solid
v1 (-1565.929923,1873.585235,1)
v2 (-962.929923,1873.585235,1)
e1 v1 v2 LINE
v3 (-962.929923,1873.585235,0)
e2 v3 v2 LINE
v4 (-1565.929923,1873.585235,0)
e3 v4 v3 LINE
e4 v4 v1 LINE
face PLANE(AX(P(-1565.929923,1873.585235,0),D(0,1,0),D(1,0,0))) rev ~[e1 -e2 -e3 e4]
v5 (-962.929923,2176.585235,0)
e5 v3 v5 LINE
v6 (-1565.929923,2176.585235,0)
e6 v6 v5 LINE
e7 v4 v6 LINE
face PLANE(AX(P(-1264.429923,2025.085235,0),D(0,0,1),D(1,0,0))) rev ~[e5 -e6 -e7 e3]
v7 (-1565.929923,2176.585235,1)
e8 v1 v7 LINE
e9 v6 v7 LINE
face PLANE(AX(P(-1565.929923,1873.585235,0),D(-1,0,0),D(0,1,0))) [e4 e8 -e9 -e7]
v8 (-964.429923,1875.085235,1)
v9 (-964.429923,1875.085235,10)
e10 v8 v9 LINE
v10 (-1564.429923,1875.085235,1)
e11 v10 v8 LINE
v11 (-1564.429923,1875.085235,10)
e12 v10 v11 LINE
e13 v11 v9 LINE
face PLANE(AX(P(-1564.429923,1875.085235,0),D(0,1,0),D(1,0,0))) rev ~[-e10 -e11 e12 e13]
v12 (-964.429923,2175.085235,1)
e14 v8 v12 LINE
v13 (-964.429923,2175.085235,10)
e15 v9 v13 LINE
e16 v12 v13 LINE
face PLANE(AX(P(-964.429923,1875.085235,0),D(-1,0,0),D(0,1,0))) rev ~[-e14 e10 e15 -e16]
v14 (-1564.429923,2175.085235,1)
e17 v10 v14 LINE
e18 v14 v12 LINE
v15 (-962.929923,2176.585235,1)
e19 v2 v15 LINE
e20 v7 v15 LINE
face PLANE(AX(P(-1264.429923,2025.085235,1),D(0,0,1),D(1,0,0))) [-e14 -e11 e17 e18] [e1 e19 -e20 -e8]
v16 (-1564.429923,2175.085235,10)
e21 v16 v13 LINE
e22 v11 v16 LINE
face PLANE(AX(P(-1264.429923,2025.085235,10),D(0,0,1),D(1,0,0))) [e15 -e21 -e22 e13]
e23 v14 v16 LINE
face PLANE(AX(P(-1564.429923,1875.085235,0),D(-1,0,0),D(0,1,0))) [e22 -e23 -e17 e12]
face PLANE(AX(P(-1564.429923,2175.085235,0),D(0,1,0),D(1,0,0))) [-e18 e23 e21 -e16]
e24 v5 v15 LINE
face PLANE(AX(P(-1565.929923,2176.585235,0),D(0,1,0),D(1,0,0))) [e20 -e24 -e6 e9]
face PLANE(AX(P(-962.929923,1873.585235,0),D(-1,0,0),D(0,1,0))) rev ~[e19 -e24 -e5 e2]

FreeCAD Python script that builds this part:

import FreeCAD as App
import Part
import Sketcher


def add_polygon(sketch, points):
    """Adds a closed chain of lines whose ends are joined by coincident constraints."""
    first, n = sketch.GeometryCount, len(points)
    for a, b in zip(points, points[1:] + points[:1]):
        sketch.addGeometry(Part.LineSegment(App.Vector(*a, 0), App.Vector(*b, 0)), False)
    for i in range(n):
        sketch.addConstraint(Sketcher.Constraint("Coincident", first + i, 2, first + (i + 1) % n, 1))

doc = App.newDocument("Part")
body = doc.addObject("PartDesign::Body", "Body")

# Sketch on XY plane
sketch1 = body.newObject("Sketcher::SketchObject", "Sketch")
sketch1.AttachmentSupport = (doc.getObject("XY_Plane"), [""])
sketch1.MapMode = "FlatFace"
add_polygon(sketch1, [(-1564, 2175), (-1564, 1875), (-964, 1875), (-964, 2175)])  # lines 0-3
sketch1.addConstraint(Sketcher.Constraint("Vertical", 0))
sketch1.addConstraint(Sketcher.Constraint("Horizontal", 1))
sketch1.addConstraint(Sketcher.Constraint("Vertical", 2))
sketch1.addConstraint(Sketcher.Constraint("Horizontal", 3))
sketch1.addConstraint(Sketcher.Constraint("DistanceX", 1, 1, 1, 2, 600.0))
sketch1.addConstraint(Sketcher.Constraint("DistanceY", 0, 2, 0, 1, 300.0))
sketch1.addConstraint(Sketcher.Constraint("DistanceX", 0, 2, -1, 1, 1564.429923))
sketch1.addConstraint(Sketcher.Constraint("DistanceY", -1, 1, 0, 2, 1875.085235))
pad1 = body.newObject("PartDesign::Pad", "Pad")
pad1.Profile = sketch1
pad1.Length = 10

# Sketch on XY plane
sketch2 = body.newObject("Sketcher::SketchObject", "Sketch001")
sketch2.AttachmentSupport = (doc.getObject("XY_Plane"), [""])
sketch2.MapMode = "FlatFace"
add_polygon(sketch2, [(-1566, 2177), (-1566, 1874), (-963, 1874), (-963, 2177)])  # lines 0-3
add_polygon(sketch2, [(-964, 1875), (-1564, 1875), (-1564, 2175), (-964, 2175)])  # lines 4-7
sketch2.addConstraint(Sketcher.Constraint("Vertical", 0))
sketch2.addConstraint(Sketcher.Constraint("Horizontal", 1))
sketch2.addConstraint(Sketcher.Constraint("Vertical", 2))
sketch2.addConstraint(Sketcher.Constraint("Horizontal", 3))
sketch2.addConstraint(Sketcher.Constraint("Horizontal", 4))
sketch2.addConstraint(Sketcher.Constraint("Vertical", 5))
sketch2.addConstraint(Sketcher.Constraint("Horizontal", 6))
sketch2.addConstraint(Sketcher.Constraint("Vertical", 7))
sketch2.addConstraint(Sketcher.Constraint("DistanceX", 1, 1, 1, 2, 603.0))
sketch2.addConstraint(Sketcher.Constraint("DistanceX", 4, 2, 4, 1, 600.0))
sketch2.addConstraint(Sketcher.Constraint("DistanceY", 0, 2, 0, 1, 303.0))
sketch2.addConstraint(Sketcher.Constraint("DistanceY", 5, 1, 5, 2, 300.0))
sketch2.addConstraint(Sketcher.Constraint("DistanceX", 0, 2, 4, 2, 1.5))
sketch2.addConstraint(Sketcher.Constraint("DistanceY", 0, 2, 4, 2, 1.5))
sketch2.addConstraint(Sketcher.Constraint("DistanceX", 0, 2, -1, 1, 1565.929923))
sketch2.addConstraint(Sketcher.Constraint("DistanceY", -1, 1, 0, 2, 1873.585235))
pad2 = body.newObject("PartDesign::Pad", "Pad001")
pad2.Profile = sketch2
pad2.Length = 1

doc.recompute()
